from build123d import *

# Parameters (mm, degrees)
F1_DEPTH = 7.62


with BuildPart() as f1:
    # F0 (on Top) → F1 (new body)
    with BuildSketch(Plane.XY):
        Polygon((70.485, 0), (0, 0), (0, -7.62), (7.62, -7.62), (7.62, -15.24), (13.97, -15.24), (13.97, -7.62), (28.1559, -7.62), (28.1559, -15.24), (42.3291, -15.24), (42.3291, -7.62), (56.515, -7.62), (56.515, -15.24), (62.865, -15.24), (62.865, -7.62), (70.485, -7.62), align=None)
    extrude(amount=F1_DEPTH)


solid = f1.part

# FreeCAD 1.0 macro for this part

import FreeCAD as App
import Part
import Sketcher
Q = App.Units.Quantity

doc = App.newDocument("Part")
body = doc.addObject("PartDesign::Body", "Body")

# Sketch on XY plane
sketch1 = doc.addObject("Sketcher::SketchObject", "Sketch")
body.addObject(sketch1)
sketch1.AttachmentSupport = (doc.XY_Plane, [""])
sketch1.MapMode = "FlatFace"
sketch1.addGeometry([
    Part.LineSegment(App.Vector(70, 0, 0), App.Vector(0, 0, 0)),  # 0
    Part.LineSegment(App.Vector(0, 0, 0), App.Vector(0, -8, 0)),  # 1
    Part.LineSegment(App.Vector(0, -8, 0), App.Vector(8, -8, 0)),  # 2
    Part.LineSegment(App.Vector(8, -8, 0), App.Vector(8, -15, 0)),  # 3
    Part.LineSegment(App.Vector(8, -15, 0), App.Vector(14, -15, 0)),  # 4
    Part.LineSegment(App.Vector(14, -15, 0), App.Vector(14, -8, 0)),  # 5
    Part.LineSegment(App.Vector(14, -8, 0), App.Vector(28, -8, 0)),  # 6
    Part.LineSegment(App.Vector(28, -8, 0), App.Vector(28, -15, 0)),  # 7
    Part.LineSegment(App.Vector(28, -15, 0), App.Vector(42, -15, 0)),  # 8
    Part.LineSegment(App.Vector(42, -15, 0), App.Vector(42, -8, 0)),  # 9
    Part.LineSegment(App.Vector(42, -8, 0), App.Vector(57, -8, 0)),  # 10
    Part.LineSegment(App.Vector(57, -8, 0), App.Vector(57, -15, 0)),  # 11
    Part.LineSegment(App.Vector(57, -15, 0), App.Vector(63, -15, 0)),  # 12
    Part.LineSegment(App.Vector(63, -15, 0), App.Vector(63, -8, 0)),  # 13
    Part.LineSegment(App.Vector(63, -8, 0), App.Vector(70, -8, 0)),  # 14
    Part.LineSegment(App.Vector(70, -8, 0), App.Vector(70, 0, 0)),  # 15
], False)
sketch1.addConstraint([
    Sketcher.Constraint("Coincident", 0, 2, 1, 1),
    Sketcher.Constraint("Coincident", 1, 2, 2, 1),
    Sketcher.Constraint("Coincident", 2, 2, 3, 1),
    Sketcher.Constraint("Coincident", 3, 2, 4, 1),
    Sketcher.Constraint("Coincident", 4, 2, 5, 1),
    Sketcher.Constraint("Coincident", 5, 2, 6, 1),
    Sketcher.Constraint("Coincident", 6, 2, 7, 1),
    Sketcher.Constraint("Coincident", 7, 2, 8, 1),
    Sketcher.Constraint("Coincident", 8, 2, 9, 1),
    Sketcher.Constraint("Coincident", 9, 2, 10, 1),
    Sketcher.Constraint("Coincident", 10, 2, 11, 1),
    Sketcher.Constraint("Coincident", 11, 2, 12, 1),
    Sketcher.Constraint("Coincident", 12, 2, 13, 1),
    Sketcher.Constraint("Coincident", 13, 2, 14, 1),
    Sketcher.Constraint("Coincident", 14, 2, 15, 1),
    Sketcher.Constraint("Coincident", 15, 2, 0, 1),
    Sketcher.Constraint("Horizontal", 0),
    Sketcher.Constraint("Vertical", 1),
    Sketcher.Constraint("Horizontal", 2),
    Sketcher.Constraint("Vertical", 3),
    Sketcher.Constraint("Horizontal", 4),
    Sketcher.Constraint("Vertical", 5),
    Sketcher.Constraint("Horizontal", 6),
    Sketcher.Constraint("Vertical", 7),
    Sketcher.Constraint("Horizontal", 8),
    Sketcher.Constraint("Vertical", 9),
    Sketcher.Constraint("Horizontal", 10),
    Sketcher.Constraint("Vertical", 11),
    Sketcher.Constraint("Horizontal", 12),
    Sketcher.Constraint("Vertical", 13),
    Sketcher.Constraint("Horizontal", 14),
    Sketcher.Constraint("Vertical", 15),
    Sketcher.Constraint("Coincident", 0, 2, -1, 1),
    Sketcher.Constraint("Horizontal", 2, 2, 5, 2),
    Sketcher.Constraint("Horizontal", 4, 2, 7, 2),
    Sketcher.Constraint("Horizontal", 6, 2, 9, 2),
    Sketcher.Constraint("Horizontal", 8, 2, 11, 2),
    Sketcher.Constraint("Horizontal", 10, 2, 13, 2),
    Sketcher.Constraint("Equal", 6, 10),
    Sketcher.Constraint("Equal", 4, 12),
    Sketcher.Constraint("Equal", 2, 14),
    Sketcher.Constraint("Equal", 14, 1),
    Sketcher.Constraint("Equal", 1, 3),
    Sketcher.Constraint("DistanceX", 2, 1, 2, 2, Q("0.3 in")),
    Sketcher.Constraint("DistanceX", 4, 1, 4, 2, Q("0.25 in")),
    Sketcher.Constraint("DistanceX", 0, 2, 0, 1, Q("2.775 in")),
    Sketcher.Constraint("DistanceX", 8, 1, 8, 2, Q("0.558 in")),
])
pad1 = doc.addObject("PartDesign::Pad", "Pad")
body.addObject(pad1)
pad1.Profile = sketch1
pad1.Length = Q("0.3 in")

doc.recompute()
